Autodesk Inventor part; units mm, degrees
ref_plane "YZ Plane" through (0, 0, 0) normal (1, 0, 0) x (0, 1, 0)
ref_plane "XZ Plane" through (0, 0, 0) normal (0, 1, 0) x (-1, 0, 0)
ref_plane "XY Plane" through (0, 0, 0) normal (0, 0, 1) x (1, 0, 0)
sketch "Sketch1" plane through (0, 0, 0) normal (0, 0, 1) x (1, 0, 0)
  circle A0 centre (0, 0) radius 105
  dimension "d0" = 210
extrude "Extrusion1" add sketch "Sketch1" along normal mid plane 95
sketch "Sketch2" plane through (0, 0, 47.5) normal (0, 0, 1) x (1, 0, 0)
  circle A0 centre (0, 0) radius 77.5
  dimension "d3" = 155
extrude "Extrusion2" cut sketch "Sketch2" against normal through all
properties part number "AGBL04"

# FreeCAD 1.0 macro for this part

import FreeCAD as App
import Part
import Sketcher
from FreeCAD import Vector
Q = App.Units.Quantity

doc = App.newDocument("Part")
body = doc.addObject("PartDesign::Body", "Body")

sketch1 = body.newObject("Sketcher::SketchObject", "Sketch")
sketch1.AttachmentSupport = (doc.getObject("XY_Plane"), [""])
sketch1.MapMode = "FlatFace"
sketch1.addGeometry(Part.Circle(Vector(0, 0, 0), Vector(0, 0, 1), 105), False)
sketch1.addConstraint(Sketcher.Constraint("Coincident", 0, 3, -1, 1))
sketch1.addConstraint(Sketcher.Constraint("Diameter", 0, Q("210 mm")))
pad1 = body.newObject("PartDesign::Pad", "Pad")
pad1.Profile = sketch1
pad1.Length = 95
pad1.Midplane = True

sketch2 = body.newObject("Sketcher::SketchObject", "Sketch001")
sketch2.AttachmentSupport = (doc.getObject("XY_Plane"), [""])
sketch2.MapMode = "FlatFace"
sketch2.AttachmentOffset = App.Placement(Vector(0, 0, 47.5), App.Rotation())
sketch2.addGeometry(Part.Circle(Vector(0, 0, 0), Vector(0, 0, 1), 78), False)
sketch2.addConstraint(Sketcher.Constraint("Coincident", 0, 3, -1, 1))
sketch2.addConstraint(Sketcher.Constraint("Diameter", 0, Q("155 mm")))
pocket1 = body.newObject("PartDesign::Pocket", "Pocket")
pocket1.Profile = sketch2
pocket1.Type = "ThroughAll"

doc.recompute()
